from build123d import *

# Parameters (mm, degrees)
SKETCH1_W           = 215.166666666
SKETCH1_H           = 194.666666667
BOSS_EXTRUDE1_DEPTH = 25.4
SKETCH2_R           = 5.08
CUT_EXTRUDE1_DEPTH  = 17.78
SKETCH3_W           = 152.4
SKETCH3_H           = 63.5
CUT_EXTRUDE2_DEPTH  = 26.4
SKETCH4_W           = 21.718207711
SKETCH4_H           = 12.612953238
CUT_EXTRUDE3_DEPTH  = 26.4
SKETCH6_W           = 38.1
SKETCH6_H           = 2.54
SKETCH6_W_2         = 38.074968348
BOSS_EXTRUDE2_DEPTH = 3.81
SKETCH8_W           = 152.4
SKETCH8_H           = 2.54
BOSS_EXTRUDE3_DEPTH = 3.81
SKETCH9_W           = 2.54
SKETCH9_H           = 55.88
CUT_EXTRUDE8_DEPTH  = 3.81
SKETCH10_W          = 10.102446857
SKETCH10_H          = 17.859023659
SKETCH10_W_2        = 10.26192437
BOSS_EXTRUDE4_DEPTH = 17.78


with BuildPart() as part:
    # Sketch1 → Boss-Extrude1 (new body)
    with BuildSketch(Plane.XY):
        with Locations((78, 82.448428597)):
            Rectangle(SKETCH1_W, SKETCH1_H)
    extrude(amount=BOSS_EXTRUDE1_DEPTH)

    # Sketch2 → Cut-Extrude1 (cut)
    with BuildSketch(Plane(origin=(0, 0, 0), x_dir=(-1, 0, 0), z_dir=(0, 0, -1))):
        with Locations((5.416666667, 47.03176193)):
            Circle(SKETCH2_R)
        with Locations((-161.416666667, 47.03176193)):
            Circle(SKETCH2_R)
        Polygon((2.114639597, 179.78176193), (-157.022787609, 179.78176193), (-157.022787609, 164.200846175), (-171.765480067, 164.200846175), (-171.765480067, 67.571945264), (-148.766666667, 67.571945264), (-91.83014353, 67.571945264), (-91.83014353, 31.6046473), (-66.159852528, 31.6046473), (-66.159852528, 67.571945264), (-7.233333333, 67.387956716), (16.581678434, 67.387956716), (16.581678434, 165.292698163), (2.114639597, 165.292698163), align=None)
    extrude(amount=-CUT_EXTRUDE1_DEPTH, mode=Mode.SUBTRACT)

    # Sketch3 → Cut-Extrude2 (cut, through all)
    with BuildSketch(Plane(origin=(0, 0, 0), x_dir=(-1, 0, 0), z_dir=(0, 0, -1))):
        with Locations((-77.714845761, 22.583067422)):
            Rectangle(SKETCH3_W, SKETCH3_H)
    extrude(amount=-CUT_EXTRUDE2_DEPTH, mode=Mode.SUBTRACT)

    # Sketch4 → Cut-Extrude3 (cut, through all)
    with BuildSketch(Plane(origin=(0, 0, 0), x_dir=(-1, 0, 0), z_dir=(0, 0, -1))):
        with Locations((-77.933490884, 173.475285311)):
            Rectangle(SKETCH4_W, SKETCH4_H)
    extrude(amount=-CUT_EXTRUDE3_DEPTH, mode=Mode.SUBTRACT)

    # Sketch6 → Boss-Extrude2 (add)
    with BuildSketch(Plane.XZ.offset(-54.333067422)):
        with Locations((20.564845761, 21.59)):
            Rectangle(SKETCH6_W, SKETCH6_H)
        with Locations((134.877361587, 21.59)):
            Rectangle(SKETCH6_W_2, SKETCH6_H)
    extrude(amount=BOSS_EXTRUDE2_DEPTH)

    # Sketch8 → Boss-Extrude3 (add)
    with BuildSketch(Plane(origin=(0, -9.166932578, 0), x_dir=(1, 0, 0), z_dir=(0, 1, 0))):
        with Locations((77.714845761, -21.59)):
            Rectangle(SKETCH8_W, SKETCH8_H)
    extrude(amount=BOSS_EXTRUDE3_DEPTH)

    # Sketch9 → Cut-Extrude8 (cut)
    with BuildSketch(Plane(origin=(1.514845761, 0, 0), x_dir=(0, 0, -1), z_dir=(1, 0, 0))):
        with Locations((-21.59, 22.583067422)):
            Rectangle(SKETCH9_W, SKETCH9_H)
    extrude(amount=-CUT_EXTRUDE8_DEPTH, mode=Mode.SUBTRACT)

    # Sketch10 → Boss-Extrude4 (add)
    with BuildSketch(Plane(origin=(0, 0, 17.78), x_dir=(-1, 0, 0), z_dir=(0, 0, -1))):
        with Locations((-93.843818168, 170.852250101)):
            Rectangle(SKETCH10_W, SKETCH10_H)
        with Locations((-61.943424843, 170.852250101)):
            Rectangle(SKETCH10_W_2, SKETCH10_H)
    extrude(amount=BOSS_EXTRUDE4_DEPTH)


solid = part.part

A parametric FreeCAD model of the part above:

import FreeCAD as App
import Part
import Sketcher
Q = App.Units.Quantity

doc = App.newDocument("Part")
body = doc.addObject("PartDesign::Body", "Body")

# Sketch on XY plane
sketch1 = doc.addObject("Sketcher::SketchObject", "Sketch")
body.addObject(sketch1)
sketch1.AttachmentSupport = (doc.XY_Plane, [""])
sketch1.MapMode = "FlatFace"
sketch1.addGeometry(Part.LineSegment(App.Vector(-29.583333, 179.781762, 0), App.Vector(-29.583333, -14.884905, 0)), False)
sketch1.addGeometry(Part.LineSegment(App.Vector(-29.583333, -14.884905, 0), App.Vector(185.583333, -14.884905, 0)), False)
sketch1.addGeometry(Part.LineSegment(App.Vector(185.583333, -14.884905, 0), App.Vector(185.583333, 179.781762, 0)), False)
sketch1.addGeometry(Part.LineSegment(App.Vector(185.583333, 179.781762, 0), App.Vector(-29.583333, 179.781762, 0)), False)
sketch1.addConstraint(Sketcher.Constraint("Coincident", 0, 2, 1, 1))
sketch1.addConstraint(Sketcher.Constraint("Coincident", 1, 2, 2, 1))
sketch1.addConstraint(Sketcher.Constraint("Coincident", 2, 2, 3, 1))
sketch1.addConstraint(Sketcher.Constraint("Coincident", 3, 2, 0, 1))
sketch1.addConstraint(Sketcher.Constraint("Vertical", 0))
sketch1.addConstraint(Sketcher.Constraint("Horizontal", 1))
sketch1.addConstraint(Sketcher.Constraint("Vertical", 2))
sketch1.addConstraint(Sketcher.Constraint("Horizontal", 3))
sketch1.addConstraint(Sketcher.Constraint("DistanceX", 1, 1, 1, 2, Q("215.166667 mm")))
sketch1.addConstraint(Sketcher.Constraint("DistanceY", 0, 2, 0, 1, Q("194.666667 mm")))
sketch1.addConstraint(Sketcher.Constraint("DistanceY", -1, 1, 2, 2, Q("179.781762 mm")))
sketch1.addConstraint(Sketcher.Constraint("DistanceX", 0, 2, -1, 1, Q("29.583333 mm")))
pad1 = doc.addObject("PartDesign::Pad", "Pad")
body.addObject(pad1)
pad1.Profile = sketch1
pad1.Length = Q("1 in")

# Sketch on XY plane
sketch2 = doc.addObject("Sketcher::SketchObject", "Sketch001")
body.addObject(sketch2)
sketch2.AttachmentSupport = (doc.XY_Plane, [""])
sketch2.MapMode = "FlatFace"
sketch2.addGeometry(Part.Circle(App.Vector(-5.416667, 47.031762, 0), App.Vector(0, 0, 1), 5.08), False)
sketch2.addGeometry(Part.Circle(App.Vector(161.416667, 47.031762, 0), App.Vector(0, 0, 1), 5.08), False)
sketch2.addGeometry(Part.LineSegment(App.Vector(-2.11464, 179.781762, 0), App.Vector(157.022788, 179.781762, 0)), False)
sketch2.addGeometry(Part.LineSegment(App.Vector(157.022788, 179.781762, 0), App.Vector(157.022788, 164.200846, 0)), False)
sketch2.addGeometry(Part.LineSegment(App.Vector(157.022788, 164.200846, 0), App.Vector(171.76548, 164.200846, 0)), False)
sketch2.addGeometry(Part.LineSegment(App.Vector(171.76548, 164.200846, 0), App.Vector(171.76548, 67.571945, 0)), False)
sketch2.addGeometry(Part.LineSegment(App.Vector(171.76548, 67.571945, 0), App.Vector(91.830144, 67.571945, 0)), False)
sketch2.addGeometry(Part.LineSegment(App.Vector(91.830144, 67.571945, 0), App.Vector(91.830144, 31.604647, 0)), False)
sketch2.addGeometry(Part.LineSegment(App.Vector(91.830144, 31.604647, 0), App.Vector(66.159853, 31.604647, 0)), False)
sketch2.addGeometry(Part.LineSegment(App.Vector(66.159853, 31.604647, 0), App.Vector(66.159853, 67.571945, 0)), False)
sketch2.addGeometry(Part.LineSegment(App.Vector(66.159853, 67.571945, 0), App.Vector(7.233333, 67.387957, 0)), False)
sketch2.addGeometry(Part.LineSegment(App.Vector(7.233333, 67.387957, 0), App.Vector(-16.581678, 67.387957, 0)), False)
sketch2.addGeometry(Part.LineSegment(App.Vector(-16.581678, 67.387957, 0), App.Vector(-16.581678, 165.292698, 0)), False)
sketch2.addGeometry(Part.LineSegment(App.Vector(-16.581678, 165.292698, 0), App.Vector(-2.11464, 165.292698, 0)), False)
sketch2.addGeometry(Part.LineSegment(App.Vector(-2.11464, 165.292698, 0), App.Vector(-2.11464, 179.781762, 0)), False)
sketch2.addConstraint(Sketcher.Constraint("Coincident", 2, 2, 3, 1))
sketch2.addConstraint(Sketcher.Constraint("Coincident", 3, 2, 4, 1))
sketch2.addConstraint(Sketcher.Constraint("Coincident", 4, 2, 5, 1))
sketch2.addConstraint(Sketcher.Constraint("Coincident", 5, 2, 6, 1))
sketch2.addConstraint(Sketcher.Constraint("Coincident", 6, 2, 7, 1))
sketch2.addConstraint(Sketcher.Constraint("Coincident", 7, 2, 8, 1))
sketch2.addConstraint(Sketcher.Constraint("Coincident", 8, 2, 9, 1))
sketch2.addConstraint(Sketcher.Constraint("Coincident", 9, 2, 10, 1))
sketch2.addConstraint(Sketcher.Constraint("Coincident", 10, 2, 11, 1))
sketch2.addConstraint(Sketcher.Constraint("Coincident", 11, 2, 12, 1))
sketch2.addConstraint(Sketcher.Constraint("Coincident", 12, 2, 13, 1))
sketch2.addConstraint(Sketcher.Constraint("Coincident", 13, 2, 14, 1))
sketch2.addConstraint(Sketcher.Constraint("Coincident", 14, 2, 2, 1))
sketch2.addConstraint(Sketcher.Constraint("Horizontal", 2))
sketch2.addConstraint(Sketcher.Constraint("Vertical", 3))
sketch2.addConstraint(Sketcher.Constraint("Horizontal", 4))
sketch2.addConstraint(Sketcher.Constraint("Vertical", 5))
sketch2.addConstraint(Sketcher.Constraint("Horizontal", 6))
sketch2.addConstraint(Sketcher.Constraint("Vertical", 7))
sketch2.addConstraint(Sketcher.Constraint("Horizontal", 8))
sketch2.addConstraint(Sketcher.Constraint("Vertical", 9))
sketch2.addConstraint(Sketcher.Constraint("Horizontal", 11))
sketch2.addConstraint(Sketcher.Constraint("Vertical", 12))
sketch2.addConstraint(Sketcher.Constraint("Horizontal", 13))
sketch2.addConstraint(Sketcher.Constraint("Vertical", 14))
sketch2.addConstraint(Sketcher.Constraint("Equal", 0, 1))
sketch2.addConstraint(Sketcher.Constraint("Horizontal", 0, 3, 1, 3))
sketch2.addConstraint(Sketcher.Constraint("Horizontal", 6, 2, 9, 2))
sketch2.addConstraint(Sketcher.Constraint("Diameter", 0, Q("0.4 in")))
sketch2.addConstraint(Sketcher.Constraint("DistanceY", 5, 2, 5, 1, Q("96.628901 mm")))
sketch2.addConstraint(Sketcher.Constraint("DistanceX", 8, 2, 8, 1, Q("25.670291 mm")))
sketch2.addConstraint(Sketcher.Constraint("DistanceX", 11, 2, 11, 1, Q("23.815012 mm")))
sketch2.addConstraint(Sketcher.Constraint("DistanceX", 13, 1, 13, 2, Q("14.467039 mm")))
sketch2.addConstraint(Sketcher.Constraint("DistanceY", 12, 1, 12, 2, Q("97.904741 mm")))
sketch2.addConstraint(Sketcher.Constraint("DistanceY", -1, 1, 12, 2, Q("165.292698 mm")))
sketch2.addConstraint(Sketcher.Constraint("DistanceY", 1, 3, 2, 2, Q("132.75 mm")))
sketch2.addConstraint(Sketcher.Constraint("DistanceY", 7, 2, 3, 2, Q("132.596199 mm")))
sketch2.addConstraint(Sketcher.Constraint("DistanceX", 0, 3, 10, 2, Q("12.65 mm")))
sketch2.addConstraint(Sketcher.Constraint("DistanceX", 2, 1, 2, 2, Q("159.137427 mm")))
sketch2.addConstraint(Sketcher.Constraint("DistanceX", 4, 1, 4, 2, Q("14.742692 mm")))
sketch2.addConstraint(Sketcher.Constraint("DistanceX", 6, 2, 6, 1, Q("79.935337 mm")))
sketch2.addConstraint(Sketcher.Constraint("DistanceY", 3, 2, 3, 1, Q("15.580916 mm")))
sketch2.addConstraint(Sketcher.Constraint("DistanceY", 14, 1, 14, 2, Q("14.489064 mm")))
sketch2.addConstraint(Sketcher.Constraint("DistanceX", -1, 1, 4, 2, Q("171.76548 mm")))
sketch2.addConstraint(Sketcher.Constraint("DistanceX", 2, 2, 1, 3, Q("4.393879 mm")))
pocket1 = doc.addObject("PartDesign::Pocket", "Pocket")
body.addObject(pocket1)
pocket1.Profile = sketch2
pocket1.Length = Q("0.7 in")
pocket1.Reversed = True

# Sketch on XY plane
sketch3 = doc.addObject("Sketcher::SketchObject", "Sketch002")
body.addObject(sketch3)
sketch3.AttachmentSupport = (doc.XY_Plane, [""])
sketch3.MapMode = "FlatFace"
sketch3.addGeometry(Part.LineSegment(App.Vector(153.914846, 54.333067, 0), App.Vector(153.914846, -9.166933, 0)), False)
sketch3.addGeometry(Part.LineSegment(App.Vector(153.914846, -9.166933, 0), App.Vector(1.514846, -9.166933, 0)), False)
sketch3.addGeometry(Part.LineSegment(App.Vector(1.514846, -9.166933, 0), App.Vector(1.514846, 54.333067, 0)), False)
sketch3.addGeometry(Part.LineSegment(App.Vector(1.514846, 54.333067, 0), App.Vector(153.914846, 54.333067, 0)), False)
sketch3.addConstraint(Sketcher.Constraint("Coincident", 0, 2, 1, 1))
sketch3.addConstraint(Sketcher.Constraint("Coincident", 1, 2, 2, 1))
sketch3.addConstraint(Sketcher.Constraint("Coincident", 2, 2, 3, 1))
sketch3.addConstraint(Sketcher.Constraint("Coincident", 3, 2, 0, 1))
sketch3.addConstraint(Sketcher.Constraint("Vertical", 0))
sketch3.addConstraint(Sketcher.Constraint("Horizontal", 1))
sketch3.addConstraint(Sketcher.Constraint("Vertical", 2))
sketch3.addConstraint(Sketcher.Constraint("Horizontal", 3))
sketch3.addConstraint(Sketcher.Constraint("DistanceX", 1, 2, 1, 1, Q("6 in")))
sketch3.addConstraint(Sketcher.Constraint("DistanceY", 0, 2, 0, 1, Q("2.5 in")))
sketch3.addConstraint(Sketcher.Constraint("DistanceX", -1, 1, 0, 2, Q("153.914846 mm")))
sketch3.addConstraint(Sketcher.Constraint("DistanceY", 0, 2, -1, 1, Q("9.166933 mm")))
pocket2 = doc.addObject("PartDesign::Pocket", "Pocket001")
body.addObject(pocket2)
pocket2.Profile = sketch3
pocket2.Type = "ThroughAll"
pocket2.Reversed = True

# Sketch on XY plane
sketch4 = doc.addObject("Sketcher::SketchObject", "Sketch003")
body.addObject(sketch4)
sketch4.AttachmentSupport = (doc.XY_Plane, [""])
sketch4.MapMode = "FlatFace"
sketch4.addGeometry(Part.LineSegment(App.Vector(88.792595, 179.781762, 0), App.Vector(88.792595, 167.168809, 0)), False)
sketch4.addGeometry(Part.LineSegment(App.Vector(88.792595, 167.168809, 0), App.Vector(67.074387, 167.168809, 0)), False)
sketch4.addGeometry(Part.LineSegment(App.Vector(67.074387, 167.168809, 0), App.Vector(67.074387, 179.781762, 0)), False)
sketch4.addGeometry(Part.LineSegment(App.Vector(67.074387, 179.781762, 0), App.Vector(88.792595, 179.781762, 0)), False)
sketch4.addConstraint(Sketcher.Constraint("Coincident", 0, 2, 1, 1))
sketch4.addConstraint(Sketcher.Constraint("Coincident", 1, 2, 2, 1))
sketch4.addConstraint(Sketcher.Constraint("Coincident", 2, 2, 3, 1))
sketch4.addConstraint(Sketcher.Constraint("Coincident", 3, 2, 0, 1))
sketch4.addConstraint(Sketcher.Constraint("Vertical", 0))
sketch4.addConstraint(Sketcher.Constraint("Horizontal", 1))
sketch4.addConstraint(Sketcher.Constraint("Vertical", 2))
sketch4.addConstraint(Sketcher.Constraint("Horizontal", 3))
sketch4.addConstraint(Sketcher.Constraint("DistanceX", 1, 2, 1, 1, Q("21.718208 mm")))
sketch4.addConstraint(Sketcher.Constraint("DistanceY", 0, 2, 0, 1, Q("12.612953 mm")))
sketch4.addConstraint(Sketcher.Constraint("DistanceY", -1, 1, 0, 2, Q("167.168809 mm")))
sketch4.addConstraint(Sketcher.Constraint("DistanceX", -1, 1, 0, 2, Q("88.792595 mm")))
pocket3 = doc.addObject("PartDesign::Pocket", "Pocket002")
body.addObject(pocket3)
pocket3.Profile = sketch4
pocket3.Type = "ThroughAll"
pocket3.Reversed = True

# Sketch on XZ plane
sketch5 = doc.addObject("Sketcher::SketchObject", "Sketch004")
body.addObject(sketch5)
sketch5.AttachmentSupport = (doc.XZ_Plane, [""])
sketch5.MapMode = "FlatFace"
sketch5.AttachmentOffset = App.Placement(App.Vector(0, 0, -54.333067), App.Rotation())
sketch5.addGeometry(Part.LineSegment(App.Vector(1.514846, 22.86, 0), App.Vector(1.514846, 20.32, 0)), False)
sketch5.addGeometry(Part.LineSegment(App.Vector(1.514846, 20.32, 0), App.Vector(39.614846, 20.32, 0)), False)
sketch5.addGeometry(Part.LineSegment(App.Vector(39.614846, 20.32, 0), App.Vector(39.614846, 22.86, 0)), False)
sketch5.addGeometry(Part.LineSegment(App.Vector(39.614846, 22.86, 0), App.Vector(1.514846, 22.86, 0)), False)
sketch5.addGeometry(Part.LineSegment(App.Vector(115.839877, 22.86, 0), App.Vector(115.839877, 20.32, 0)), False)
sketch5.addGeometry(Part.LineSegment(App.Vector(115.839877, 20.32, 0), App.Vector(153.914846, 20.32, 0)), False)
sketch5.addGeometry(Part.LineSegment(App.Vector(153.914846, 20.32, 0), App.Vector(153.914846, 22.86, 0)), False)
sketch5.addGeometry(Part.LineSegment(App.Vector(153.914846, 22.86, 0), App.Vector(115.839877, 22.86, 0)), False)
sketch5.addConstraint(Sketcher.Constraint("Coincident", 0, 2, 1, 1))
sketch5.addConstraint(Sketcher.Constraint("Coincident", 1, 2, 2, 1))
sketch5.addConstraint(Sketcher.Constraint("Coincident", 2, 2, 3, 1))
sketch5.addConstraint(Sketcher.Constraint("Coincident", 3, 2, 0, 1))
sketch5.addConstraint(Sketcher.Constraint("Coincident", 4, 2, 5, 1))
sketch5.addConstraint(Sketcher.Constraint("Coincident", 5, 2, 6, 1))
sketch5.addConstraint(Sketcher.Constraint("Coincident", 6, 2, 7, 1))
sketch5.addConstraint(Sketcher.Constraint("Coincident", 7, 2, 4, 1))
sketch5.addConstraint(Sketcher.Constraint("Vertical", 0))
sketch5.addConstraint(Sketcher.Constraint("Horizontal", 1))
sketch5.addConstraint(Sketcher.Constraint("Vertical", 2))
sketch5.addConstraint(Sketcher.Constraint("Horizontal", 3))
sketch5.addConstraint(Sketcher.Constraint("Vertical", 4))
sketch5.addConstraint(Sketcher.Constraint("Horizontal", 5))
sketch5.addConstraint(Sketcher.Constraint("Vertical", 6))
sketch5.addConstraint(Sketcher.Constraint("Horizontal", 7))
sketch5.addConstraint(Sketcher.Constraint("Horizontal", 1, 2, 4, 2))
sketch5.addConstraint(Sketcher.Constraint("Horizontal", 3, 2, 6, 2))
sketch5.addConstraint(Sketcher.Constraint("DistanceX", 1, 1, 1, 2, Q("1.5 in")))
sketch5.addConstraint(Sketcher.Constraint("DistanceY", 0, 2, 0, 1, Q("0.1 in")))
sketch5.addConstraint(Sketcher.Constraint("DistanceX", 0, 2, 5, 2, Q("6 in")))
sketch5.addConstraint(Sketcher.Constraint("DistanceY", -1, 1, 0, 2, Q("0.8 in")))
sketch5.addConstraint(Sketcher.Constraint("DistanceX", 5, 1, 5, 2, Q("38.074968 mm")))
sketch5.addConstraint(Sketcher.Constraint("DistanceX", -1, 1, 0, 2, Q("1.514846 mm")))
pad2 = doc.addObject("PartDesign::Pad", "Pad001")
body.addObject(pad2)
pad2.Profile = sketch5
pad2.Length = Q("0.15 in")

# Sketch on XZ plane
sketch6 = doc.addObject("Sketcher::SketchObject", "Sketch005")
body.addObject(sketch6)
sketch6.AttachmentSupport = (doc.XZ_Plane, [""])
sketch6.MapMode = "FlatFace"
sketch6.AttachmentOffset = App.Placement(App.Vector(0, 0, 9.166933), App.Rotation())
sketch6.addGeometry(Part.LineSegment(App.Vector(1.514846, 20.32, 0), App.Vector(1.514846, 22.86, 0)), False)
sketch6.addGeometry(Part.LineSegment(App.Vector(1.514846, 22.86, 0), App.Vector(153.914846, 22.86, 0)), False)
sketch6.addGeometry(Part.LineSegment(App.Vector(153.914846, 22.86, 0), App.Vector(153.914846, 20.32, 0)), False)
sketch6.addGeometry(Part.LineSegment(App.Vector(153.914846, 20.32, 0), App.Vector(1.514846, 20.32, 0)), False)
sketch6.addConstraint(Sketcher.Constraint("Coincident", 0, 2, 1, 1))
sketch6.addConstraint(Sketcher.Constraint("Coincident", 1, 2, 2, 1))
sketch6.addConstraint(Sketcher.Constraint("Coincident", 2, 2, 3, 1))
sketch6.addConstraint(Sketcher.Constraint("Coincident", 3, 2, 0, 1))
sketch6.addConstraint(Sketcher.Constraint("Vertical", 0))
sketch6.addConstraint(Sketcher.Constraint("Horizontal", 1))
sketch6.addConstraint(Sketcher.Constraint("Vertical", 2))
sketch6.addConstraint(Sketcher.Constraint("Horizontal", 3))
sketch6.addConstraint(Sketcher.Constraint("DistanceX", 1, 1, 1, 2, Q("6 in")))
sketch6.addConstraint(Sketcher.Constraint("DistanceY", 0, 1, 0, 2, Q("0.1 in")))
sketch6.addConstraint(Sketcher.Constraint("DistanceY", -1, 1, 0, 2, Q("0.9 in")))
sketch6.addConstraint(Sketcher.Constraint("DistanceX", -1, 1, 0, 2, Q("1.514846 mm")))
pad3 = doc.addObject("PartDesign::Pad", "Pad002")
body.addObject(pad3)
pad3.Profile = sketch6
pad3.Length = Q("0.15 in")
pad3.Reversed = True

# Sketch on YZ plane
sketch7 = doc.addObject("Sketcher::SketchObject", "Sketch006")
body.addObject(sketch7)
sketch7.AttachmentSupport = (doc.YZ_Plane, [""])
sketch7.MapMode = "FlatFace"
sketch7.AttachmentOffset = App.Placement(App.Vector(0, 0, 1.514846), App.Rotation())
sketch7.addGeometry(Part.LineSegment(App.Vector(50.523067, 22.86, 0), App.Vector(-5.356933, 22.86, 0)), False)
sketch7.addGeometry(Part.LineSegment(App.Vector(-5.356933, 22.86, 0), App.Vector(-5.356933, 20.32, 0)), False)
sketch7.addGeometry(Part.LineSegment(App.Vector(-5.356933, 20.32, 0), App.Vector(50.523067, 20.32, 0)), False)
sketch7.addGeometry(Part.LineSegment(App.Vector(50.523067, 20.32, 0), App.Vector(50.523067, 22.86, 0)), False)
sketch7.addConstraint(Sketcher.Constraint("Coincident", 0, 2, 1, 1))
sketch7.addConstraint(Sketcher.Constraint("Coincident", 1, 2, 2, 1))
sketch7.addConstraint(Sketcher.Constraint("Coincident", 2, 2, 3, 1))
sketch7.addConstraint(Sketcher.Constraint("Coincident", 3, 2, 0, 1))
sketch7.addConstraint(Sketcher.Constraint("Horizontal", 0))
sketch7.addConstraint(Sketcher.Constraint("Vertical", 1))
sketch7.addConstraint(Sketcher.Constraint("Horizontal", 2))
sketch7.addConstraint(Sketcher.Constraint("Vertical", 3))
sketch7.addConstraint(Sketcher.Constraint("DistanceX", 0, 2, 0, 1, Q("2.2 in")))
sketch7.addConstraint(Sketcher.Constraint("DistanceY", 1, 2, 1, 1, Q("0.1 in")))
sketch7.addConstraint(Sketcher.Constraint("DistanceY", -1, 1, 0, 2, Q("0.9 in")))
sketch7.addConstraint(Sketcher.Constraint("DistanceX", 0, 2, -1, 1, Q("5.356933 mm")))
pocket4 = doc.addObject("PartDesign::Pocket", "Pocket003")
body.addObject(pocket4)
pocket4.Profile = sketch7
pocket4.Length = Q("0.15 in")

# Sketch on XY plane
sketch8 = doc.addObject("Sketcher::SketchObject", "Sketch007")
body.addObject(sketch8)
sketch8.AttachmentSupport = (doc.XY_Plane, [""])
sketch8.MapMode = "FlatFace"
sketch8.AttachmentOffset = App.Placement(App.Vector(0, 0, 0.7 * 25.4), App.Rotation())
sketch8.addGeometry(Part.LineSegment(App.Vector(98.895042, 179.781762, 0), App.Vector(98.895042, 161.922738, 0)), False)
sketch8.addGeometry(Part.LineSegment(App.Vector(98.895042, 161.922738, 0), App.Vector(88.792595, 161.922738, 0)), False)
sketch8.addGeometry(Part.LineSegment(App.Vector(88.792595, 161.922738, 0), App.Vector(88.792595, 179.781762, 0)), False)
sketch8.addGeometry(Part.LineSegment(App.Vector(88.792595, 179.781762, 0), App.Vector(98.895042, 179.781762, 0)), False)
sketch8.addGeometry(Part.LineSegment(App.Vector(67.074387, 179.781762, 0), App.Vector(67.074387, 161.922738, 0)), False)
sketch8.addGeometry(Part.LineSegment(App.Vector(67.074387, 161.922738, 0), App.Vector(56.812463, 161.922738, 0)), False)
sketch8.addGeometry(Part.LineSegment(App.Vector(56.812463, 161.922738, 0), App.Vector(56.812463, 179.781762, 0)), False)
sketch8.addGeometry(Part.LineSegment(App.Vector(56.812463, 179.781762, 0), App.Vector(67.074387, 179.781762, 0)), False)
sketch8.addConstraint(Sketcher.Constraint("Coincident", 0, 2, 1, 1))
sketch8.addConstraint(Sketcher.Constraint("Coincident", 1, 2, 2, 1))
sketch8.addConstraint(Sketcher.Constraint("Coincident", 2, 2, 3, 1))
sketch8.addConstraint(Sketcher.Constraint("Coincident", 3, 2, 0, 1))
sketch8.addConstraint(Sketcher.Constraint("Coincident", 4, 2, 5, 1))
sketch8.addConstraint(Sketcher.Constraint("Coincident", 5, 2, 6, 1))
sketch8.addConstraint(Sketcher.Constraint("Coincident", 6, 2, 7, 1))
sketch8.addConstraint(Sketcher.Constraint("Coincident", 7, 2, 4, 1))
sketch8.addConstraint(Sketcher.Constraint("Vertical", 0))
sketch8.addConstraint(Sketcher.Constraint("Horizontal", 1))
sketch8.addConstraint(Sketcher.Constraint("Vertical", 2))
sketch8.addConstraint(Sketcher.Constraint("Horizontal", 3))
sketch8.addConstraint(Sketcher.Constraint("Vertical", 4))
sketch8.addConstraint(Sketcher.Constraint("Horizontal", 5))
sketch8.addConstraint(Sketcher.Constraint("Vertical", 6))
sketch8.addConstraint(Sketcher.Constraint("Horizontal", 7))
sketch8.addConstraint(Sketcher.Constraint("Horizontal", 1, 2, 4, 2))
sketch8.addConstraint(Sketcher.Constraint("Horizontal", 3, 2, 6, 2))
sketch8.addConstraint(Sketcher.Constraint("DistanceX", 1, 2, 1, 1, Q("10.102447 mm")))
sketch8.addConstraint(Sketcher.Constraint("DistanceX", 5, 2, 5, 1, Q("10.261924 mm")))
sketch8.addConstraint(Sketcher.Constraint("DistanceY", 0, 2, 0, 1, Q("17.859024 mm")))
sketch8.addConstraint(Sketcher.Constraint("DistanceX", -1, 1, 0, 2, Q("98.895042 mm")))
sketch8.addConstraint(Sketcher.Constraint("DistanceY", -1, 1, 0, 2, Q("161.922738 mm")))
sketch8.addConstraint(Sketcher.Constraint("DistanceX", 5, 2, 0, 2, Q("42.082579 mm")))
pad4 = doc.addObject("PartDesign::Pad", "Pad003")
body.addObject(pad4)
pad4.Profile = sketch8
pad4.Length = Q("0.7 in")
pad4.Reversed = True

doc.recompute()
